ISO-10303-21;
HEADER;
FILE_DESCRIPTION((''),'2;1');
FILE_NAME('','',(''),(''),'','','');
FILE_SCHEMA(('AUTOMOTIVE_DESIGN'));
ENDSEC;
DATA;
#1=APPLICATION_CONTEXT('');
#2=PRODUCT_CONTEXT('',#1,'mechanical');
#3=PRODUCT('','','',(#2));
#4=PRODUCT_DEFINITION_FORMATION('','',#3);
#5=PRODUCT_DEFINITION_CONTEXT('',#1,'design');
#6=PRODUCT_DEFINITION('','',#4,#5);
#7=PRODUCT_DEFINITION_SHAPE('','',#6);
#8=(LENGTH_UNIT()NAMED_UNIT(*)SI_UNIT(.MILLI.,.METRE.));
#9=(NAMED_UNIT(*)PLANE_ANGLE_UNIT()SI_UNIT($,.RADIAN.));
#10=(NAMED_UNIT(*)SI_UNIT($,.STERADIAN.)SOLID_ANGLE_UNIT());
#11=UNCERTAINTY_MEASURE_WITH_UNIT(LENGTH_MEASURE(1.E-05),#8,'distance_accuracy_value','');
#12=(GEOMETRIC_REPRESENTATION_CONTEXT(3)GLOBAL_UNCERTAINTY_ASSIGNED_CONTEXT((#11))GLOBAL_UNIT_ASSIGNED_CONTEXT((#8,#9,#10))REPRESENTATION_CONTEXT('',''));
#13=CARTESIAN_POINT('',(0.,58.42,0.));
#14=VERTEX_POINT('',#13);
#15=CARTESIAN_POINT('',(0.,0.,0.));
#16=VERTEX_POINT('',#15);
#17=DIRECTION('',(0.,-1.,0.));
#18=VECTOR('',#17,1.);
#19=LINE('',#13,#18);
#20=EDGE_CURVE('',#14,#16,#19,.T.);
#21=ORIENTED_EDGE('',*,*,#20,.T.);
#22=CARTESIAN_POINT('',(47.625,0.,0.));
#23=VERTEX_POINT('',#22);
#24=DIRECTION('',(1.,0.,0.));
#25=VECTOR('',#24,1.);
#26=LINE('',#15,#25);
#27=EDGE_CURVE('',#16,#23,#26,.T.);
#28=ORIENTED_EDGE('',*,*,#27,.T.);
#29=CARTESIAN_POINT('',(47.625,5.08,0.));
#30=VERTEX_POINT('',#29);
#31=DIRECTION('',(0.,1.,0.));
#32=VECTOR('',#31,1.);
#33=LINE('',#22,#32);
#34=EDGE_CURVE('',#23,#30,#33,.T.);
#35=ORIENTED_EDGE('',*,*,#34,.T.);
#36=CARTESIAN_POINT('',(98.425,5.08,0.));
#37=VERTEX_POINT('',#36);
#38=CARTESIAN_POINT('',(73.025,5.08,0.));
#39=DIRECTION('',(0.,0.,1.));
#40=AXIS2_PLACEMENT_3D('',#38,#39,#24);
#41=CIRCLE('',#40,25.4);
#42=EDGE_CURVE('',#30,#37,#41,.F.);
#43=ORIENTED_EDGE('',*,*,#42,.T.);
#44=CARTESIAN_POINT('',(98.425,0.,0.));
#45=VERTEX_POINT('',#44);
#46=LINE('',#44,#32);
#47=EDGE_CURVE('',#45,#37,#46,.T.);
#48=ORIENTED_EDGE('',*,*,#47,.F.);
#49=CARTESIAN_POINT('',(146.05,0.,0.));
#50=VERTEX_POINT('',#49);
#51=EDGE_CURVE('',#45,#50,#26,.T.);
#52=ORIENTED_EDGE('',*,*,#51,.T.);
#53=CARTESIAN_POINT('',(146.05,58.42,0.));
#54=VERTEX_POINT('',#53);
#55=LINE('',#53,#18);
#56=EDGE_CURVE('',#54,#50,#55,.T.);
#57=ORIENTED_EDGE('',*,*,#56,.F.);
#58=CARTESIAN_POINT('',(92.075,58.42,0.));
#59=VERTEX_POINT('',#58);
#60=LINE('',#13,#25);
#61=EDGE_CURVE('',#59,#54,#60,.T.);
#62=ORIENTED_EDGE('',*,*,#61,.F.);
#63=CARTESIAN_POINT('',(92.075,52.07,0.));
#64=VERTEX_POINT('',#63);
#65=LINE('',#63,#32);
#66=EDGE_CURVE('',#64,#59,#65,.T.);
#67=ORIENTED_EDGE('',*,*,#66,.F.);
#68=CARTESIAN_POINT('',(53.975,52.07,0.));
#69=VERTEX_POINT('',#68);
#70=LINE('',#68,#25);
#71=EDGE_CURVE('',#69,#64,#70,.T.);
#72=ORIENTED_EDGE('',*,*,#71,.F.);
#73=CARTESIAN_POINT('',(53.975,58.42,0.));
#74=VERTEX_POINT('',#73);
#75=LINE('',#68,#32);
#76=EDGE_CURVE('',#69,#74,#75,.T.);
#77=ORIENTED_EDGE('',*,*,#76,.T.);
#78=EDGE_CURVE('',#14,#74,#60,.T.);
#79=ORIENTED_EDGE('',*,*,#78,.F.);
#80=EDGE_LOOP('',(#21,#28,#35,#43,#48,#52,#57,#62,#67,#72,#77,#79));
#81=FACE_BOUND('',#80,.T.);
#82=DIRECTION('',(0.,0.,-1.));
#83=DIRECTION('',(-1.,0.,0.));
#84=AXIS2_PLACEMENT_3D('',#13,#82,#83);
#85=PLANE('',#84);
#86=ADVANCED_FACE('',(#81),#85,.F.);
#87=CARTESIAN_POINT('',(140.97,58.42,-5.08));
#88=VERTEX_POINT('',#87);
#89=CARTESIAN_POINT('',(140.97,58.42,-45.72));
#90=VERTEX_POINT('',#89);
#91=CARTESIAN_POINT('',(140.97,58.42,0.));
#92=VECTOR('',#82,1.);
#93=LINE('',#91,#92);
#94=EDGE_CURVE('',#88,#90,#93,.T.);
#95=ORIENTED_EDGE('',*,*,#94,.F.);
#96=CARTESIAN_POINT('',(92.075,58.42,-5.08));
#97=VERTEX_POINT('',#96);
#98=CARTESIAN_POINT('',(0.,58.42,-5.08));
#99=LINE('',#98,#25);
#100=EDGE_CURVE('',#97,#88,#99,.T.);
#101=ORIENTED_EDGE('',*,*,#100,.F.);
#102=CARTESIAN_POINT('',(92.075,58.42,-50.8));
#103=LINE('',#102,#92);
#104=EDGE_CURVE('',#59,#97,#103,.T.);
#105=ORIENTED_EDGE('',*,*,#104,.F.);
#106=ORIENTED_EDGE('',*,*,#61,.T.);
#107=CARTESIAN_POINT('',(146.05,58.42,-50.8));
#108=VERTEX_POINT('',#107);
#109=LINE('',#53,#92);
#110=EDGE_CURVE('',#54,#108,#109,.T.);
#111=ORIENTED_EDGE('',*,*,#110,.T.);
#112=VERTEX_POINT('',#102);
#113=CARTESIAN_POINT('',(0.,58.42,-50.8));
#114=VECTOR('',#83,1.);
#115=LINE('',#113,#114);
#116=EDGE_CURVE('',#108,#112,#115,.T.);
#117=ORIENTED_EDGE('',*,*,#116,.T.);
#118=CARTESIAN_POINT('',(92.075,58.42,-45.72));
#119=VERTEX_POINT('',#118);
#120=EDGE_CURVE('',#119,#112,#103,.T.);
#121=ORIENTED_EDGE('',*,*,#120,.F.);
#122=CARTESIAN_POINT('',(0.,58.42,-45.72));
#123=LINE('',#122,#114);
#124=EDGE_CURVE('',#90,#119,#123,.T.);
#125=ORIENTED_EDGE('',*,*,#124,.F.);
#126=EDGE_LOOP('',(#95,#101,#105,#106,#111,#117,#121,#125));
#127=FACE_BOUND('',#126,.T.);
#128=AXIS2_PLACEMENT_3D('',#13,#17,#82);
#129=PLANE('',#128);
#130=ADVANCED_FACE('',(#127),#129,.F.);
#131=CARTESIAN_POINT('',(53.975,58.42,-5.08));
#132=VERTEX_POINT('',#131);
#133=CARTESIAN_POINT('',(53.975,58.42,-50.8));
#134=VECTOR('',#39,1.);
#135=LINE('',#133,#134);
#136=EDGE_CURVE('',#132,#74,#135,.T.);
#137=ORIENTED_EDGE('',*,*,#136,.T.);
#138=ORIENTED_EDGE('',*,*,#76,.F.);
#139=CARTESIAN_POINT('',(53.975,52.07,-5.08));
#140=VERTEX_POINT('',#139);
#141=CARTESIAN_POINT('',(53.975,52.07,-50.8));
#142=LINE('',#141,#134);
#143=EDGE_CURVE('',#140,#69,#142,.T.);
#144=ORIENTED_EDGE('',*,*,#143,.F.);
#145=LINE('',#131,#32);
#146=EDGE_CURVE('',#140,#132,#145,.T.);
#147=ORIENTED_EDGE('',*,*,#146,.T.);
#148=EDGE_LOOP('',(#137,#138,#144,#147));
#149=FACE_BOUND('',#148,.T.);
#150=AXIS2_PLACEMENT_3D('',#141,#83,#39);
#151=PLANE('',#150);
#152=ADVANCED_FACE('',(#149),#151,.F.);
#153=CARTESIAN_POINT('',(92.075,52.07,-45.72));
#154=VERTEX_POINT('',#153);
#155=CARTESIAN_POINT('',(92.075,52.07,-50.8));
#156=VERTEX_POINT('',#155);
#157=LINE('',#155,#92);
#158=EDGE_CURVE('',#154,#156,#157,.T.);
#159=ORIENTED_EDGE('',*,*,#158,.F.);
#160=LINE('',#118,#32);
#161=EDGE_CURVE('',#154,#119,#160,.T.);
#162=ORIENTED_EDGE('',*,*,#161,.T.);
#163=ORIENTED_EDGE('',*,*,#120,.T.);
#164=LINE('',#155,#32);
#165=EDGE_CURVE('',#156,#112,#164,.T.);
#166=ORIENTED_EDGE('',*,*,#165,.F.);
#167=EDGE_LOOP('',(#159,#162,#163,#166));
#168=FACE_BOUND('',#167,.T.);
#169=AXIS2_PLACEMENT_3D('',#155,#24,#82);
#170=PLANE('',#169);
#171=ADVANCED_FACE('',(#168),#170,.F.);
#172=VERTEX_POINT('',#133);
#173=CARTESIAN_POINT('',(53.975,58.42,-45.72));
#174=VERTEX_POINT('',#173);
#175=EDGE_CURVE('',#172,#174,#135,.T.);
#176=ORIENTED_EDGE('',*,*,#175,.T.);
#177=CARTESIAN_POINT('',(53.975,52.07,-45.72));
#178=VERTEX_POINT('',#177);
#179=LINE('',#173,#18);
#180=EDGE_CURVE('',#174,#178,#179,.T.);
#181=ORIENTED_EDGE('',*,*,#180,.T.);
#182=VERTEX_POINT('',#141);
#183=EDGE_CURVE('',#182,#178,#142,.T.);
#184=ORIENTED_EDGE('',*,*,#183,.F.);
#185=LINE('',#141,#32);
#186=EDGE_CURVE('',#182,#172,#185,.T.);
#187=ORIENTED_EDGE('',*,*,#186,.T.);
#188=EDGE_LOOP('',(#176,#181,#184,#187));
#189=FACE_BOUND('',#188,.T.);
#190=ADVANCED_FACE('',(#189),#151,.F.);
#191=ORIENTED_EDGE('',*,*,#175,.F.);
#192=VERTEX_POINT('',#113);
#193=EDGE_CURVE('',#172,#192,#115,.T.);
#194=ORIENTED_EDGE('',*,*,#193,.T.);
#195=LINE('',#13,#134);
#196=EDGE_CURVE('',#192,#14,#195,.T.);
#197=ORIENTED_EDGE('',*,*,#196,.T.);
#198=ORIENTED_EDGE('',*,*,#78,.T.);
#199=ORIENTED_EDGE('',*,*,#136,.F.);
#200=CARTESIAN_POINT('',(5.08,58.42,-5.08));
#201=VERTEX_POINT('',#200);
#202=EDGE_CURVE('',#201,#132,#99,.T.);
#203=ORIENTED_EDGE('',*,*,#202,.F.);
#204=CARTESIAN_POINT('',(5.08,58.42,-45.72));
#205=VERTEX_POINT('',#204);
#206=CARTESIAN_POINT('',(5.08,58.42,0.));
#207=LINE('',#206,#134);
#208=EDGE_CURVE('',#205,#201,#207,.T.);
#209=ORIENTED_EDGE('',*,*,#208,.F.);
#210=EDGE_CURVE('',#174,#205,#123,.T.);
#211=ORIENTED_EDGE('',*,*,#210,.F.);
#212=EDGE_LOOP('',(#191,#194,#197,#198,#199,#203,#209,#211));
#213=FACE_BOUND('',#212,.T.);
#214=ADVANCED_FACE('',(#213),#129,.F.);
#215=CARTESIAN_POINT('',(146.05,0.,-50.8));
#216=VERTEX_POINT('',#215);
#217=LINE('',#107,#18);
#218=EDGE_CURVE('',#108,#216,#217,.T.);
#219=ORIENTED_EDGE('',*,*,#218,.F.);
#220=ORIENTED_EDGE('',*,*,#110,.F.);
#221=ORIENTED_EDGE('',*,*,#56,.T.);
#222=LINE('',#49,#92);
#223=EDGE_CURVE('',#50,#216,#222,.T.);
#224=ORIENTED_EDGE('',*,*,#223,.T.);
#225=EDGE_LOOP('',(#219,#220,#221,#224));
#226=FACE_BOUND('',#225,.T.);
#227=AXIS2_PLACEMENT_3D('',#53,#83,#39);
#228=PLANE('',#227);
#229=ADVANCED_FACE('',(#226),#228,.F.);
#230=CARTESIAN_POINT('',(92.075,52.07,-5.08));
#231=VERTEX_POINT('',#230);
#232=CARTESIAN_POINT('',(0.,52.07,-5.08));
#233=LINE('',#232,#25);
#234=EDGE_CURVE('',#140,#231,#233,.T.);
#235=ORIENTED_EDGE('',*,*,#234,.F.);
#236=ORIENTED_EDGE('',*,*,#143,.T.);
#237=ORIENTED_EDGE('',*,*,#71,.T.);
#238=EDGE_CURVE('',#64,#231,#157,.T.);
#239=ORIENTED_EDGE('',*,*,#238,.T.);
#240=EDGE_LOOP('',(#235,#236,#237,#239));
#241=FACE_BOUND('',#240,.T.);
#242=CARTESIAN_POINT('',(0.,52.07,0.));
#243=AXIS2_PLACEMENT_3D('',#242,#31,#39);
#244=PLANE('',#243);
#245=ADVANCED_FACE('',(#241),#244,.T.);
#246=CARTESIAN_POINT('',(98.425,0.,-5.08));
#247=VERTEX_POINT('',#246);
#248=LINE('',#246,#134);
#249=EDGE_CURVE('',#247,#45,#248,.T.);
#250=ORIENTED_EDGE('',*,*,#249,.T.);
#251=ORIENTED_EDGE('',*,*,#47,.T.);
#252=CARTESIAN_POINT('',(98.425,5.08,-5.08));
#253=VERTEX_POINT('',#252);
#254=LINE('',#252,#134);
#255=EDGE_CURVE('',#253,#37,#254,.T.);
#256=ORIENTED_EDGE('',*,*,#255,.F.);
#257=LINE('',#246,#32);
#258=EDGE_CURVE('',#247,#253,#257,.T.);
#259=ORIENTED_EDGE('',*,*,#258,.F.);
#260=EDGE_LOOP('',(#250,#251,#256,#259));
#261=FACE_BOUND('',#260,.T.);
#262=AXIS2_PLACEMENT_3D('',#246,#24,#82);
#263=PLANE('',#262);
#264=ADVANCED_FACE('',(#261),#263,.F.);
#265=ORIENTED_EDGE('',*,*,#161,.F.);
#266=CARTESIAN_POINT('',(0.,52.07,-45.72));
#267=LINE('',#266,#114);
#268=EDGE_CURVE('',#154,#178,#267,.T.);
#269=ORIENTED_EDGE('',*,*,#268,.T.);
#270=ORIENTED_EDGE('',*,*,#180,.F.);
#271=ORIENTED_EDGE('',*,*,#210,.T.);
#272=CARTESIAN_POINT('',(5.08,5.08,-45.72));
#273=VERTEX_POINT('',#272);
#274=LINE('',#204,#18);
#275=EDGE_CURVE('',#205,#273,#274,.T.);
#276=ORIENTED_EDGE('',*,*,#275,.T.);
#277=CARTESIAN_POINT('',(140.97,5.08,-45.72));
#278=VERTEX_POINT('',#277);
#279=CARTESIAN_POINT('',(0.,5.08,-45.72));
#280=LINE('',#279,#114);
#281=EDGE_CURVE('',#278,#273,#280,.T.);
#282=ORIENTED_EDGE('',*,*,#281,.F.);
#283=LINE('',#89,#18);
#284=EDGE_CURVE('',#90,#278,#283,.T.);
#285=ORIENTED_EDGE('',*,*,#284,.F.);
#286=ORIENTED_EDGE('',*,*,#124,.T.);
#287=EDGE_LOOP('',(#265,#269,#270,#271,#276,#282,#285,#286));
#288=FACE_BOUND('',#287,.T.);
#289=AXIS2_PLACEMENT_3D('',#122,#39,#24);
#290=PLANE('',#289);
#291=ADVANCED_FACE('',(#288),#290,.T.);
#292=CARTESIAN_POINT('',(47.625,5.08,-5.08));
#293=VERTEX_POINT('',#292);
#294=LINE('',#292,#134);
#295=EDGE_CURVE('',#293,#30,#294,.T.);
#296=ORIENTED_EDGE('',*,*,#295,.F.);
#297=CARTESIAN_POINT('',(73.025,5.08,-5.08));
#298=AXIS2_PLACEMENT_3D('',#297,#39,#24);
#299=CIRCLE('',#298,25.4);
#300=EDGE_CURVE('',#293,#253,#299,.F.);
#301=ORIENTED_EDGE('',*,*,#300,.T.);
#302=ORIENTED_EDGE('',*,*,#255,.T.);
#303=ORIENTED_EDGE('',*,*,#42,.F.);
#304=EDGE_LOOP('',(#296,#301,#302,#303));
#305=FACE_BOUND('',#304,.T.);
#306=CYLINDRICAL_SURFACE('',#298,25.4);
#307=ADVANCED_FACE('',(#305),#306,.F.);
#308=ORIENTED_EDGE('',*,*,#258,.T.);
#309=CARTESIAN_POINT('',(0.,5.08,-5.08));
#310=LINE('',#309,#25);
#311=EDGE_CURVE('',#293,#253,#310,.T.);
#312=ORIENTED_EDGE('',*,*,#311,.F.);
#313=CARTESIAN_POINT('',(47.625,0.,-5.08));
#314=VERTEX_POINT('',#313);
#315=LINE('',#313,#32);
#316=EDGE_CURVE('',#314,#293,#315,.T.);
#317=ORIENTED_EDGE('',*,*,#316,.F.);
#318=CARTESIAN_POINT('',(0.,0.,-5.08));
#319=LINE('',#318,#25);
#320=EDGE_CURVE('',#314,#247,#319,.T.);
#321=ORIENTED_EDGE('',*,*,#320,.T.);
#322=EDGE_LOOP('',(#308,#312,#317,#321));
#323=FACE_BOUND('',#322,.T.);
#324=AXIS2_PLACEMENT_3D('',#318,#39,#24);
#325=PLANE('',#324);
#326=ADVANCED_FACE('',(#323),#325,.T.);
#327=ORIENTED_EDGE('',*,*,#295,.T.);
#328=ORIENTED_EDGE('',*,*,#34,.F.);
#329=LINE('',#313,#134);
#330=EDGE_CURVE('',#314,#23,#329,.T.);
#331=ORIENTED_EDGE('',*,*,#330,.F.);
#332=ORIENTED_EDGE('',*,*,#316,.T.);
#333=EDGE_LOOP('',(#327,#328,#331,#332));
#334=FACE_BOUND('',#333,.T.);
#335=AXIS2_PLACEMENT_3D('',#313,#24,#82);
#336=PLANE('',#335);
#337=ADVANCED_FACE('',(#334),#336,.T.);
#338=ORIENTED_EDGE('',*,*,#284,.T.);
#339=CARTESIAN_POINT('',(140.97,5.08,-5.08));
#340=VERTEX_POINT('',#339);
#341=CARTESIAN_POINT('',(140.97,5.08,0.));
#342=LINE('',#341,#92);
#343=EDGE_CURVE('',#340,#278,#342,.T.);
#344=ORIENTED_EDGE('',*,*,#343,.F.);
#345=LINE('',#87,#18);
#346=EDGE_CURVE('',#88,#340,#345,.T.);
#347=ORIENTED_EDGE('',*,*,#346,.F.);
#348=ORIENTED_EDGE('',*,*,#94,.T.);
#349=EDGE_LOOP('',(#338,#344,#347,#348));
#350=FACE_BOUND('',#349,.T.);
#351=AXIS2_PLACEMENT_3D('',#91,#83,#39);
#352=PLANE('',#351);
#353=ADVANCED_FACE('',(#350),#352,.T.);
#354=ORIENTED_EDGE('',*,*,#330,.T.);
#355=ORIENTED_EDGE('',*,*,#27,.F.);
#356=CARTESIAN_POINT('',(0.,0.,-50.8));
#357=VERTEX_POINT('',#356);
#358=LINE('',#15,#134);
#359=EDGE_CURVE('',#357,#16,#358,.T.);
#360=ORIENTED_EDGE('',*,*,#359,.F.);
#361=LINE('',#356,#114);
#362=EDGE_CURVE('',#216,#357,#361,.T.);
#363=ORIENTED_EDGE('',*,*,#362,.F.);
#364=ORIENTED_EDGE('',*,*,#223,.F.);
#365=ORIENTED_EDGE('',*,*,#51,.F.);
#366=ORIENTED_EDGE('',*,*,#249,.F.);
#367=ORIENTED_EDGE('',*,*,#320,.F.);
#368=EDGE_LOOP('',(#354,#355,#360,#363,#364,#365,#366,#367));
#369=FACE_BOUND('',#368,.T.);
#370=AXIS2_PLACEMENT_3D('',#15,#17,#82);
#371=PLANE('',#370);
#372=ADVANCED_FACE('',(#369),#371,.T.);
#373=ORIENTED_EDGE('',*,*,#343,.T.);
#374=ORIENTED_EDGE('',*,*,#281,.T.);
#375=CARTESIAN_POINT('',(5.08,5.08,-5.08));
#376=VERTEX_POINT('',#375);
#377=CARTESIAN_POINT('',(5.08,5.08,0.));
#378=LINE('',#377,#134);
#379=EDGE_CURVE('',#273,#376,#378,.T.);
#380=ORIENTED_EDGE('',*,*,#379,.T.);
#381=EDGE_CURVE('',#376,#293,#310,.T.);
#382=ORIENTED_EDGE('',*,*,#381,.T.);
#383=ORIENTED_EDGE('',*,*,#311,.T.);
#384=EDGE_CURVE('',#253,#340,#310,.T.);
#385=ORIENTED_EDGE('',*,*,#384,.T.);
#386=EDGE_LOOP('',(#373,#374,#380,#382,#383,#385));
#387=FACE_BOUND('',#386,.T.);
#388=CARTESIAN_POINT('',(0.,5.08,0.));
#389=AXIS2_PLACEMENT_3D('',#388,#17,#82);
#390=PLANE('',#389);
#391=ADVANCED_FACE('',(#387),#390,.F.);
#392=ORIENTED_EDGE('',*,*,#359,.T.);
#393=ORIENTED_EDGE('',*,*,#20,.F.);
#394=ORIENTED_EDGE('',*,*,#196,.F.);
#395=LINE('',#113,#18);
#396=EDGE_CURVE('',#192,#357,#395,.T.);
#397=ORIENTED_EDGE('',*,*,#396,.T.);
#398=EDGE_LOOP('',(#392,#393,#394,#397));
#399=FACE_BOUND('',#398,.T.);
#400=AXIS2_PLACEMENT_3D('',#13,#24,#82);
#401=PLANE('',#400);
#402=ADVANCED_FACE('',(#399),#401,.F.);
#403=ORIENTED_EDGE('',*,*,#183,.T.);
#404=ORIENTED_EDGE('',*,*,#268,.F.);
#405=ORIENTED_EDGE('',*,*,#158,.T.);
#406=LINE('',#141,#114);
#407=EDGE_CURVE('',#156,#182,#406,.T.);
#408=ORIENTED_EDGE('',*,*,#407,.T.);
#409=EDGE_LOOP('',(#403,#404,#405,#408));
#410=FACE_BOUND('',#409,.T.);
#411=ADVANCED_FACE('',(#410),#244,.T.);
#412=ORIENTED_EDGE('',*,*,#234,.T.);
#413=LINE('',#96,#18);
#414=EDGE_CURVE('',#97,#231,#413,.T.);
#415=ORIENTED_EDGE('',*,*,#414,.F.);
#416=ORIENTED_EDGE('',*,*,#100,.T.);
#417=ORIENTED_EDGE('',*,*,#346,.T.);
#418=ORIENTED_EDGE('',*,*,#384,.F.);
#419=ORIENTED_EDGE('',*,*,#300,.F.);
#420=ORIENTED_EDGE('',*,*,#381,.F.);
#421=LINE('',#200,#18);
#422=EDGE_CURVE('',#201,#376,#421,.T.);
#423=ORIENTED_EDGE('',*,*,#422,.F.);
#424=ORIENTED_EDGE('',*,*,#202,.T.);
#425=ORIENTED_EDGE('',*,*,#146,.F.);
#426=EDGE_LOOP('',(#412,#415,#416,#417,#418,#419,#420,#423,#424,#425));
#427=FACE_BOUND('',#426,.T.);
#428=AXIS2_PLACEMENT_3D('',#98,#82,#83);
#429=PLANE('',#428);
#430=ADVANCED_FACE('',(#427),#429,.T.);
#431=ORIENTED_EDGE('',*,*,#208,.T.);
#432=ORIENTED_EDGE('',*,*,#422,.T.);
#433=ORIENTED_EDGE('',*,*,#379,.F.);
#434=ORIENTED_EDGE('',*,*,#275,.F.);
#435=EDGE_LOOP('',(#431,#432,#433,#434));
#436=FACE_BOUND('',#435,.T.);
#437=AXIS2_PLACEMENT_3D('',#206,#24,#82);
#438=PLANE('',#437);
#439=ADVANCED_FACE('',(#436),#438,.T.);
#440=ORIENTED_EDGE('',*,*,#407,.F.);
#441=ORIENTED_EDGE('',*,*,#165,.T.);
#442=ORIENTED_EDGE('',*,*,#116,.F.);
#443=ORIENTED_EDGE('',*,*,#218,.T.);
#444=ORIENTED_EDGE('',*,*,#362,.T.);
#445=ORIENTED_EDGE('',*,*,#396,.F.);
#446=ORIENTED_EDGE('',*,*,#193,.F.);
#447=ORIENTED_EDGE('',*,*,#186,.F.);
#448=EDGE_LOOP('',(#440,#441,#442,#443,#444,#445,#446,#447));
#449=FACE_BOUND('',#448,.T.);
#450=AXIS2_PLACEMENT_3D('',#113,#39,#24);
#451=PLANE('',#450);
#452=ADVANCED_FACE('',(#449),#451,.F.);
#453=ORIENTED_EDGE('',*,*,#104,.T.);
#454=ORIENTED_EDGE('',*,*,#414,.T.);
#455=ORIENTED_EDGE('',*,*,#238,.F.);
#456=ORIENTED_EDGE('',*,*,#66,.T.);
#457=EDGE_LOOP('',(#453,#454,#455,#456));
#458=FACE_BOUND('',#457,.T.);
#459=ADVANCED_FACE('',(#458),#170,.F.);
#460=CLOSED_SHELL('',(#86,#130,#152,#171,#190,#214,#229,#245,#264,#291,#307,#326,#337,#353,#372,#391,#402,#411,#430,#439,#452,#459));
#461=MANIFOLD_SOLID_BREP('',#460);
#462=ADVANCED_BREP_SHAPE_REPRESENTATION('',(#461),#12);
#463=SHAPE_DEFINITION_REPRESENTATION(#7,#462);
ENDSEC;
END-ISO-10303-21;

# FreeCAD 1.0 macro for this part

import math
import FreeCAD as App
import Part
import Sketcher

V = App.Vector
Q = App.Units.Quantity


def faces_at(feature, points):
    """Names of the faces that lie closest to the given points."""
    faces = feature.Shape.Faces
    near = lambda p: min(range(len(faces)), key=lambda i: faces[i].distToShape(Part.Vertex(*p))[0])
    return sorted({f"Face{near(p) + 1}" for p in points})


def add_polygon(sketch, points):
    """Adds a closed chain of lines whose ends are joined by coincident constraints."""
    first, n = sketch.GeometryCount, len(points)
    for a, b in zip(points, points[1:] + points[:1]):
        sketch.addGeometry(Part.LineSegment(App.Vector(*a, 0), App.Vector(*b, 0)), False)
    for i in range(n):
        sketch.addConstraint(Sketcher.Constraint("Coincident", first + i, 2, first + (i + 1) % n, 1))

doc = App.newDocument("Part")
body = doc.addObject("PartDesign::Body", "Body")

# Sketch on XZ plane
sketch1 = doc.addObject("Sketcher::SketchObject", "Sketch")
body.addObject(sketch1)
sketch1.AttachmentSupport = (doc.XZ_Plane, [""])
sketch1.MapMode = "FlatFace"
add_polygon(sketch1, [(0, -51), (0, 0), (146, 0), (146, -51)])  # lines 0-3
sketch1.addConstraint(Sketcher.Constraint("Vertical", 0))
sketch1.addConstraint(Sketcher.Constraint("Horizontal", 1))
sketch1.addConstraint(Sketcher.Constraint("Vertical", 2))
sketch1.addConstraint(Sketcher.Constraint("Horizontal", 3))
sketch1.addConstraint(Sketcher.Constraint("Coincident", 0, 2, -1, 1))
sketch1.addConstraint(Sketcher.Constraint("DistanceY", 0, 1, 0, 2, Q("2 in")))
sketch1.addConstraint(Sketcher.Constraint("DistanceX", 1, 1, 1, 2, Q("5.75 in")))
pad1 = doc.addObject("PartDesign::Pad", "Pad")
body.addObject(pad1)
pad1.Profile = sketch1
pad1.Length = Q("2.3 in")
pad1.Reversed = True
doc.recompute()

thickness = doc.addObject("PartDesign::Thickness", "Thickness")
body.addObject(thickness)
thickness.Base = (pad1, faces_at(pad1, [(73.025, 58.42, -25.4)]))
thickness.Value = Q("0.2 in")
thickness.Reversed = True
thickness.Join = "Intersection"

# Sketch on XY plane
sketch2 = doc.addObject("Sketcher::SketchObject", "Sketch001")
body.addObject(sketch2)
sketch2.AttachmentSupport = (doc.XY_Plane, [""])
sketch2.MapMode = "FlatFace"
sketch2.addGeometry(Part.LineSegment(V(48, 5, 0), V(48, 0, 0)), False)
sketch2.addGeometry(Part.LineSegment(V(48, 0, 0), V(98, 0, 0)), False)
sketch2.addGeometry(Part.LineSegment(V(98, 0, 0), V(98, 5, 0)), False)
sketch2.addGeometry(Part.ArcOfCircle(Part.Circle(V(73, 5, 0), V(0, 0, 1), 25), math.radians(0), math.radians(180)), False)
sketch2.addConstraint(Sketcher.Constraint("Coincident", 0, 2, 1, 1))
sketch2.addConstraint(Sketcher.Constraint("Coincident", 1, 2, 2, 1))
sketch2.addConstraint(Sketcher.Constraint("Tangent", 2, 2, 3, 1))
sketch2.addConstraint(Sketcher.Constraint("Tangent", 3, 2, 0, 1))
sketch2.addConstraint(Sketcher.Constraint("Vertical", 0))
sketch2.addConstraint(Sketcher.Constraint("Horizontal", 1))
sketch2.addConstraint(Sketcher.Constraint("Vertical", 2))
sketch2.addConstraint(Sketcher.Constraint("PointOnObject", 0, 2, -1))
sketch2.addConstraint(Sketcher.Constraint("Radius", 3, Q("1 in")))
sketch2.addConstraint(Sketcher.Constraint("DistanceY", 0, 2, 0, 1, Q("0.2 in")))
sketch2.addConstraint(Sketcher.Constraint("DistanceX", -1, 1, 3, 3, Q("2.875 in")))
pocket1 = doc.addObject("PartDesign::Pocket", "Pocket")
body.addObject(pocket1)
pocket1.Profile = sketch2
pocket1.Length = Q("0.2 in")

# Sketch on XZ plane
sketch3 = doc.addObject("Sketcher::SketchObject", "Sketch002")
body.addObject(sketch3)
sketch3.AttachmentSupport = (doc.XZ_Plane, [""])
sketch3.MapMode = "FlatFace"
sketch3.AttachmentOffset = App.Placement(V(0, 0, -2.3 * 25.4), App.Rotation())
add_polygon(sketch3, [(54, -51), (54, 0), (92, 0), (92, -51)])  # lines 0-3
sketch3.addConstraint(Sketcher.Constraint("Vertical", 0))
sketch3.addConstraint(Sketcher.Constraint("Horizontal", 1))
sketch3.addConstraint(Sketcher.Constraint("Vertical", 2))
sketch3.addConstraint(Sketcher.Constraint("Horizontal", 3))
sketch3.addConstraint(Sketcher.Constraint("PointOnObject", 0, 2, -1))
sketch3.addConstraint(Sketcher.Constraint("DistanceY", 0, 1, 0, 2, Q("2 in")))
sketch3.addConstraint(Sketcher.Constraint("DistanceX", 1, 1, 1, 2, Q("1.5 in")))
sketch3.addConstraint(Sketcher.Constraint("DistanceX", -1, 1, 0, 2, Q("2.125 in")))
pocket2 = doc.addObject("PartDesign::Pocket", "Pocket001")
body.addObject(pocket2)
pocket2.Profile = sketch3
pocket2.Length = Q("0.25 in")
pocket2.Reversed = True

doc.recompute()
